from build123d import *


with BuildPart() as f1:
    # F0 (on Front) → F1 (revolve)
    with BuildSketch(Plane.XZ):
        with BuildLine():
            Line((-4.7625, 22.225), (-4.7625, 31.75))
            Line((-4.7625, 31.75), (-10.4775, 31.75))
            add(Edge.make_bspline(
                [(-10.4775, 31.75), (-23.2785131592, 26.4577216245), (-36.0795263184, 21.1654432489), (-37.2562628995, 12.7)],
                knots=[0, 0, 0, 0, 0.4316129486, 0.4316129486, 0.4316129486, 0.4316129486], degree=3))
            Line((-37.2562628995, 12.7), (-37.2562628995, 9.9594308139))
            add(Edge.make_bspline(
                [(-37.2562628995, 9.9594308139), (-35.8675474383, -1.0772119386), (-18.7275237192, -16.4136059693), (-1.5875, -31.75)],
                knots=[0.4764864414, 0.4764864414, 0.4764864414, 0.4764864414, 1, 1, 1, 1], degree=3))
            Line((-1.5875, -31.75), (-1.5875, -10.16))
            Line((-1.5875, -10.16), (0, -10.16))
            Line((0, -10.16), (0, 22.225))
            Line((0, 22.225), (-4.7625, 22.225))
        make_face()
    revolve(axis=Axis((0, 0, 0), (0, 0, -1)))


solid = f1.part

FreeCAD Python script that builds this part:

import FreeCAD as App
import Part
import Sketcher
Q = App.Units.Quantity

doc = App.newDocument("Part")
params = doc.addObject("Spreadsheet::Sheet", "Params")
for row, (alias, value) in enumerate([
    ("sketch1_height", "0.85 in"),
    ("sketch1_width", "0.225 in"),
    ("sketch1_height2", "0.375 in"),
    ("revolution_angle", "360 deg"),
], start=1):
    params.set(f"A{row}", alias)
    params.set(f"B{row}", "=" + value)
    params.setAlias(f"B{row}", alias)

body = doc.addObject("PartDesign::Body", "Body")

# Sketch on XZ plane
sketch1 = body.newObject("Sketcher::SketchObject", "Sketch")
sketch1.AttachmentSupport = (doc.getObject("XZ_Plane"), [""])
sketch1.MapMode = "FlatFace"
sketch1.addGeometry(Part.LineSegment(App.Vector(-4.7625, 22.225, 0), App.Vector(-4.7625, 31.75, 0)), False)
sketch1.addGeometry(Part.LineSegment(App.Vector(-4.7625, 31.75, 0), App.Vector(-10.4775, 31.75, 0)), False)
sketch1.addGeometry(Part.BSplineCurve([App.Vector(-10.4775, 31.75, 0), App.Vector(-23.278513, 26.457722, 0), App.Vector(-36.079526, 21.165443, 0), App.Vector(-37.256263, 12.7, 0)], [4, 4], [0, 0.431612949], False, 3, [1, 1, 1, 1], False), False)
sketch1.addGeometry(Part.LineSegment(App.Vector(-37.256263, 12.7, 0), App.Vector(-37.256263, 9.959431, 0)), False)
sketch1.addGeometry(Part.BSplineCurve([App.Vector(-37.256263, 9.959431, 0), App.Vector(-35.867547, -1.077212, 0), App.Vector(-18.727524, -16.413606, 0), App.Vector(-1.5875, -31.75, 0)], [4, 4], [0.476486441, 1], False, 3, [1, 1, 1, 1], False), False)
sketch1.addGeometry(Part.LineSegment(App.Vector(-1.5875, -31.75, 0), App.Vector(-1.5875, -10.16, 0)), False)
sketch1.addGeometry(Part.LineSegment(App.Vector(-1.5875, -10.16, 0), App.Vector(0, -10.16, 0)), False)
sketch1.addGeometry(Part.LineSegment(App.Vector(0, -10.16, 0), App.Vector(0, 22.225, 0)), False)
sketch1.addGeometry(Part.LineSegment(App.Vector(0, 22.225, 0), App.Vector(-4.7625, 22.225, 0)), False)
sketch1.addConstraint(Sketcher.Constraint("Block", 2))
sketch1.addConstraint(Sketcher.Constraint("Block", 4))
sketch1.addConstraint(Sketcher.Constraint("Coincident", 0, 2, 1, 1))
sketch1.addConstraint(Sketcher.Constraint("Coincident", 1, 2, 2, 1))
sketch1.addConstraint(Sketcher.Constraint("Coincident", 2, 2, 3, 1))
sketch1.addConstraint(Sketcher.Constraint("Coincident", 3, 2, 4, 1))
sketch1.addConstraint(Sketcher.Constraint("Coincident", 4, 2, 5, 1))
sketch1.addConstraint(Sketcher.Constraint("Coincident", 5, 2, 6, 1))
sketch1.addConstraint(Sketcher.Constraint("Coincident", 6, 2, 7, 1))
sketch1.addConstraint(Sketcher.Constraint("Coincident", 7, 2, 8, 1))
sketch1.addConstraint(Sketcher.Constraint("Coincident", 8, 2, 0, 1))
sketch1.addConstraint(Sketcher.Constraint("Vertical", 0))
sketch1.addConstraint(Sketcher.Constraint("Horizontal", 1))
sketch1.addConstraint(Sketcher.Constraint("Vertical", 5))
sketch1.addConstraint(Sketcher.Constraint("Horizontal", 6))
sketch1.addConstraint(Sketcher.Constraint("Vertical", 7))
sketch1.addConstraint(Sketcher.Constraint("Horizontal", 8))
sketch1.addConstraint(Sketcher.Constraint("PointOnObject", 6, 2, -2))
sketch1.addConstraint(Sketcher.Constraint("DistanceY", 5, 1, 5, 2, Q("0.85 in")))
sketch1.addConstraint(Sketcher.Constraint("DistanceX", 1, 2, 1, 1, Q("0.225 in")))
sketch1.addConstraint(Sketcher.Constraint("DistanceY", 0, 1, 0, 2, Q("0.375 in")))
sketch1.setExpression("Constraints[18]", "Params.sketch1_height")
sketch1.setExpression("Constraints[19]", "Params.sketch1_width")
sketch1.setExpression("Constraints[20]", "Params.sketch1_height2")
revolution = body.newObject("PartDesign::Revolution", "Revolution")
revolution.Profile = sketch1
revolution.ReferenceAxis = (sketch1, ["V_Axis"])
revolution.setExpression("Angle", "Params.revolution_angle")

doc.recompute()
